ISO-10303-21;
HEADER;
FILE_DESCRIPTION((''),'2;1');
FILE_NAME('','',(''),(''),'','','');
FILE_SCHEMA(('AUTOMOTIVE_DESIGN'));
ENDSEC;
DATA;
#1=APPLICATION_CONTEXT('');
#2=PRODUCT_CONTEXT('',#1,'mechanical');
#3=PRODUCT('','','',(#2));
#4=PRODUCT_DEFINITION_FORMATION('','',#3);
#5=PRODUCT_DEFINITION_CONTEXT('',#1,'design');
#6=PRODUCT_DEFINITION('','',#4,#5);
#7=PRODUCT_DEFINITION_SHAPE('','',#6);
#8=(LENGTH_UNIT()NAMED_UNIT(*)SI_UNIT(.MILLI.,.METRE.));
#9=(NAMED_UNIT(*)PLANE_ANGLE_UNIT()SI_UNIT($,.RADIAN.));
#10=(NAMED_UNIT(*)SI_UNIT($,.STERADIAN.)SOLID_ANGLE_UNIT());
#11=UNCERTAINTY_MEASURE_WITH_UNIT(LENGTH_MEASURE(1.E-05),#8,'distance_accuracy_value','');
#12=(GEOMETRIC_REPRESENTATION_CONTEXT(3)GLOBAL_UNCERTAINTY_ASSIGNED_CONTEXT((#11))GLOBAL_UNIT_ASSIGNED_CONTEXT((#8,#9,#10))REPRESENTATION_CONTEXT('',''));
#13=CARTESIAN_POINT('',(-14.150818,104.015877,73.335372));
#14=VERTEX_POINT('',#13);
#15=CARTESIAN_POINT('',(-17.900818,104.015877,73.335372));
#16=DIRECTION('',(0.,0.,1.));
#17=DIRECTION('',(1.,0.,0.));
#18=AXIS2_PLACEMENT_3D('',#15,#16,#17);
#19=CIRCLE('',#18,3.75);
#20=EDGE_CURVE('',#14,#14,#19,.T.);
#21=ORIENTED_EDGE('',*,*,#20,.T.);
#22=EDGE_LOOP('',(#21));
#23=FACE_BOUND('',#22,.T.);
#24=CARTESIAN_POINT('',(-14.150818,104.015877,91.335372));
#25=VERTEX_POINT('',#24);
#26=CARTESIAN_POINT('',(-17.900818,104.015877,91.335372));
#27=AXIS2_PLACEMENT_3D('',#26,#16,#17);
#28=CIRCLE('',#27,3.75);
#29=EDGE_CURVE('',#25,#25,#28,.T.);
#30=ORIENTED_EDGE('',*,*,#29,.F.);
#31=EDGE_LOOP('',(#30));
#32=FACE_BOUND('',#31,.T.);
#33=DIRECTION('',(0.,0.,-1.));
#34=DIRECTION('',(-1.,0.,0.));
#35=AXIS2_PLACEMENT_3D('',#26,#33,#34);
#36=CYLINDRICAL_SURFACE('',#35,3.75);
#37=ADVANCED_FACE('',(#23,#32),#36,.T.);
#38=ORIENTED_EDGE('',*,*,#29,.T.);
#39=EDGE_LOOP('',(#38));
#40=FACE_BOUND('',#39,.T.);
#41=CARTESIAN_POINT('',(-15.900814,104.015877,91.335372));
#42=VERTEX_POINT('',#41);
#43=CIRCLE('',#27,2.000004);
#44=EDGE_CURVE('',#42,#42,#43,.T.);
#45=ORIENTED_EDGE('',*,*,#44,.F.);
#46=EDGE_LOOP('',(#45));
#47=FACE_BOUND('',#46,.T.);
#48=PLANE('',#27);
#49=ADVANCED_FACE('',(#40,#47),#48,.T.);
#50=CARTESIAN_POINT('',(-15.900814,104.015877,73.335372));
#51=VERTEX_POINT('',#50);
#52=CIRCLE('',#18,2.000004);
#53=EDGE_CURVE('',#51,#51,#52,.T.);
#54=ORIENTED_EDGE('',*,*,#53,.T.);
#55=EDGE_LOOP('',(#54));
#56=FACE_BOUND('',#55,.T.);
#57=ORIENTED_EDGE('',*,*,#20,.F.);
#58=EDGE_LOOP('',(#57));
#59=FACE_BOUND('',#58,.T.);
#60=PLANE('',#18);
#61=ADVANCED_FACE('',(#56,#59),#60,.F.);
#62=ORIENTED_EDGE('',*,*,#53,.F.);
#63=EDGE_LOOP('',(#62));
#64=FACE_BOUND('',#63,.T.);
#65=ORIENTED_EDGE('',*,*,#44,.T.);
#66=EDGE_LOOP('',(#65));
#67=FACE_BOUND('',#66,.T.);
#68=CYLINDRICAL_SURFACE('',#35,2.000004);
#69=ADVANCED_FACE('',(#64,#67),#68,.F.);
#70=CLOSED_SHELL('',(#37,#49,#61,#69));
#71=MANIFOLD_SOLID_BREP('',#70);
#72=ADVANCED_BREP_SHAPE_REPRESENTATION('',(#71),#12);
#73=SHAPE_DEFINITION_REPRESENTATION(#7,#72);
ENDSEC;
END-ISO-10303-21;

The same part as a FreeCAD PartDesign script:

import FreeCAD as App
import Part
import Sketcher

V = App.Vector

doc = App.newDocument("Part")
body = doc.addObject("PartDesign::Body", "Body")

sketch1 = body.newObject("Sketcher::SketchObject", "Sketch")
sketch1.AttachmentSupport = (doc.getObject("XY_Plane"), [""])
sketch1.MapMode = "FlatFace"
sketch1.AttachmentOffset = App.Placement(V(0, 0, 73.335372), App.Rotation())
sketch1.addGeometry([
    Part.Circle(V(-17.900818, 104.015877, 0), V(0, 0, 1), 3.75),
    Part.Circle(V(-17.900818, 104.015877, 0), V(0, 0, 1), 2.000004),
], False)
sketch1.addConstraint([
    Sketcher.Constraint("Coincident", 1, 3, 0, 3),
    Sketcher.Constraint("Diameter", 0, 7.5),
    Sketcher.Constraint("Diameter", 1, 4.000008),
    Sketcher.Constraint("DistanceX", 0, 3, -1, 1, 17.900818),
    Sketcher.Constraint("DistanceY", -1, 1, 0, 3, 104.015877),
])
pad1 = body.newObject("PartDesign::Pad", "Pad")
pad1.Profile = sketch1
pad1.Length = 18

doc.recompute()
